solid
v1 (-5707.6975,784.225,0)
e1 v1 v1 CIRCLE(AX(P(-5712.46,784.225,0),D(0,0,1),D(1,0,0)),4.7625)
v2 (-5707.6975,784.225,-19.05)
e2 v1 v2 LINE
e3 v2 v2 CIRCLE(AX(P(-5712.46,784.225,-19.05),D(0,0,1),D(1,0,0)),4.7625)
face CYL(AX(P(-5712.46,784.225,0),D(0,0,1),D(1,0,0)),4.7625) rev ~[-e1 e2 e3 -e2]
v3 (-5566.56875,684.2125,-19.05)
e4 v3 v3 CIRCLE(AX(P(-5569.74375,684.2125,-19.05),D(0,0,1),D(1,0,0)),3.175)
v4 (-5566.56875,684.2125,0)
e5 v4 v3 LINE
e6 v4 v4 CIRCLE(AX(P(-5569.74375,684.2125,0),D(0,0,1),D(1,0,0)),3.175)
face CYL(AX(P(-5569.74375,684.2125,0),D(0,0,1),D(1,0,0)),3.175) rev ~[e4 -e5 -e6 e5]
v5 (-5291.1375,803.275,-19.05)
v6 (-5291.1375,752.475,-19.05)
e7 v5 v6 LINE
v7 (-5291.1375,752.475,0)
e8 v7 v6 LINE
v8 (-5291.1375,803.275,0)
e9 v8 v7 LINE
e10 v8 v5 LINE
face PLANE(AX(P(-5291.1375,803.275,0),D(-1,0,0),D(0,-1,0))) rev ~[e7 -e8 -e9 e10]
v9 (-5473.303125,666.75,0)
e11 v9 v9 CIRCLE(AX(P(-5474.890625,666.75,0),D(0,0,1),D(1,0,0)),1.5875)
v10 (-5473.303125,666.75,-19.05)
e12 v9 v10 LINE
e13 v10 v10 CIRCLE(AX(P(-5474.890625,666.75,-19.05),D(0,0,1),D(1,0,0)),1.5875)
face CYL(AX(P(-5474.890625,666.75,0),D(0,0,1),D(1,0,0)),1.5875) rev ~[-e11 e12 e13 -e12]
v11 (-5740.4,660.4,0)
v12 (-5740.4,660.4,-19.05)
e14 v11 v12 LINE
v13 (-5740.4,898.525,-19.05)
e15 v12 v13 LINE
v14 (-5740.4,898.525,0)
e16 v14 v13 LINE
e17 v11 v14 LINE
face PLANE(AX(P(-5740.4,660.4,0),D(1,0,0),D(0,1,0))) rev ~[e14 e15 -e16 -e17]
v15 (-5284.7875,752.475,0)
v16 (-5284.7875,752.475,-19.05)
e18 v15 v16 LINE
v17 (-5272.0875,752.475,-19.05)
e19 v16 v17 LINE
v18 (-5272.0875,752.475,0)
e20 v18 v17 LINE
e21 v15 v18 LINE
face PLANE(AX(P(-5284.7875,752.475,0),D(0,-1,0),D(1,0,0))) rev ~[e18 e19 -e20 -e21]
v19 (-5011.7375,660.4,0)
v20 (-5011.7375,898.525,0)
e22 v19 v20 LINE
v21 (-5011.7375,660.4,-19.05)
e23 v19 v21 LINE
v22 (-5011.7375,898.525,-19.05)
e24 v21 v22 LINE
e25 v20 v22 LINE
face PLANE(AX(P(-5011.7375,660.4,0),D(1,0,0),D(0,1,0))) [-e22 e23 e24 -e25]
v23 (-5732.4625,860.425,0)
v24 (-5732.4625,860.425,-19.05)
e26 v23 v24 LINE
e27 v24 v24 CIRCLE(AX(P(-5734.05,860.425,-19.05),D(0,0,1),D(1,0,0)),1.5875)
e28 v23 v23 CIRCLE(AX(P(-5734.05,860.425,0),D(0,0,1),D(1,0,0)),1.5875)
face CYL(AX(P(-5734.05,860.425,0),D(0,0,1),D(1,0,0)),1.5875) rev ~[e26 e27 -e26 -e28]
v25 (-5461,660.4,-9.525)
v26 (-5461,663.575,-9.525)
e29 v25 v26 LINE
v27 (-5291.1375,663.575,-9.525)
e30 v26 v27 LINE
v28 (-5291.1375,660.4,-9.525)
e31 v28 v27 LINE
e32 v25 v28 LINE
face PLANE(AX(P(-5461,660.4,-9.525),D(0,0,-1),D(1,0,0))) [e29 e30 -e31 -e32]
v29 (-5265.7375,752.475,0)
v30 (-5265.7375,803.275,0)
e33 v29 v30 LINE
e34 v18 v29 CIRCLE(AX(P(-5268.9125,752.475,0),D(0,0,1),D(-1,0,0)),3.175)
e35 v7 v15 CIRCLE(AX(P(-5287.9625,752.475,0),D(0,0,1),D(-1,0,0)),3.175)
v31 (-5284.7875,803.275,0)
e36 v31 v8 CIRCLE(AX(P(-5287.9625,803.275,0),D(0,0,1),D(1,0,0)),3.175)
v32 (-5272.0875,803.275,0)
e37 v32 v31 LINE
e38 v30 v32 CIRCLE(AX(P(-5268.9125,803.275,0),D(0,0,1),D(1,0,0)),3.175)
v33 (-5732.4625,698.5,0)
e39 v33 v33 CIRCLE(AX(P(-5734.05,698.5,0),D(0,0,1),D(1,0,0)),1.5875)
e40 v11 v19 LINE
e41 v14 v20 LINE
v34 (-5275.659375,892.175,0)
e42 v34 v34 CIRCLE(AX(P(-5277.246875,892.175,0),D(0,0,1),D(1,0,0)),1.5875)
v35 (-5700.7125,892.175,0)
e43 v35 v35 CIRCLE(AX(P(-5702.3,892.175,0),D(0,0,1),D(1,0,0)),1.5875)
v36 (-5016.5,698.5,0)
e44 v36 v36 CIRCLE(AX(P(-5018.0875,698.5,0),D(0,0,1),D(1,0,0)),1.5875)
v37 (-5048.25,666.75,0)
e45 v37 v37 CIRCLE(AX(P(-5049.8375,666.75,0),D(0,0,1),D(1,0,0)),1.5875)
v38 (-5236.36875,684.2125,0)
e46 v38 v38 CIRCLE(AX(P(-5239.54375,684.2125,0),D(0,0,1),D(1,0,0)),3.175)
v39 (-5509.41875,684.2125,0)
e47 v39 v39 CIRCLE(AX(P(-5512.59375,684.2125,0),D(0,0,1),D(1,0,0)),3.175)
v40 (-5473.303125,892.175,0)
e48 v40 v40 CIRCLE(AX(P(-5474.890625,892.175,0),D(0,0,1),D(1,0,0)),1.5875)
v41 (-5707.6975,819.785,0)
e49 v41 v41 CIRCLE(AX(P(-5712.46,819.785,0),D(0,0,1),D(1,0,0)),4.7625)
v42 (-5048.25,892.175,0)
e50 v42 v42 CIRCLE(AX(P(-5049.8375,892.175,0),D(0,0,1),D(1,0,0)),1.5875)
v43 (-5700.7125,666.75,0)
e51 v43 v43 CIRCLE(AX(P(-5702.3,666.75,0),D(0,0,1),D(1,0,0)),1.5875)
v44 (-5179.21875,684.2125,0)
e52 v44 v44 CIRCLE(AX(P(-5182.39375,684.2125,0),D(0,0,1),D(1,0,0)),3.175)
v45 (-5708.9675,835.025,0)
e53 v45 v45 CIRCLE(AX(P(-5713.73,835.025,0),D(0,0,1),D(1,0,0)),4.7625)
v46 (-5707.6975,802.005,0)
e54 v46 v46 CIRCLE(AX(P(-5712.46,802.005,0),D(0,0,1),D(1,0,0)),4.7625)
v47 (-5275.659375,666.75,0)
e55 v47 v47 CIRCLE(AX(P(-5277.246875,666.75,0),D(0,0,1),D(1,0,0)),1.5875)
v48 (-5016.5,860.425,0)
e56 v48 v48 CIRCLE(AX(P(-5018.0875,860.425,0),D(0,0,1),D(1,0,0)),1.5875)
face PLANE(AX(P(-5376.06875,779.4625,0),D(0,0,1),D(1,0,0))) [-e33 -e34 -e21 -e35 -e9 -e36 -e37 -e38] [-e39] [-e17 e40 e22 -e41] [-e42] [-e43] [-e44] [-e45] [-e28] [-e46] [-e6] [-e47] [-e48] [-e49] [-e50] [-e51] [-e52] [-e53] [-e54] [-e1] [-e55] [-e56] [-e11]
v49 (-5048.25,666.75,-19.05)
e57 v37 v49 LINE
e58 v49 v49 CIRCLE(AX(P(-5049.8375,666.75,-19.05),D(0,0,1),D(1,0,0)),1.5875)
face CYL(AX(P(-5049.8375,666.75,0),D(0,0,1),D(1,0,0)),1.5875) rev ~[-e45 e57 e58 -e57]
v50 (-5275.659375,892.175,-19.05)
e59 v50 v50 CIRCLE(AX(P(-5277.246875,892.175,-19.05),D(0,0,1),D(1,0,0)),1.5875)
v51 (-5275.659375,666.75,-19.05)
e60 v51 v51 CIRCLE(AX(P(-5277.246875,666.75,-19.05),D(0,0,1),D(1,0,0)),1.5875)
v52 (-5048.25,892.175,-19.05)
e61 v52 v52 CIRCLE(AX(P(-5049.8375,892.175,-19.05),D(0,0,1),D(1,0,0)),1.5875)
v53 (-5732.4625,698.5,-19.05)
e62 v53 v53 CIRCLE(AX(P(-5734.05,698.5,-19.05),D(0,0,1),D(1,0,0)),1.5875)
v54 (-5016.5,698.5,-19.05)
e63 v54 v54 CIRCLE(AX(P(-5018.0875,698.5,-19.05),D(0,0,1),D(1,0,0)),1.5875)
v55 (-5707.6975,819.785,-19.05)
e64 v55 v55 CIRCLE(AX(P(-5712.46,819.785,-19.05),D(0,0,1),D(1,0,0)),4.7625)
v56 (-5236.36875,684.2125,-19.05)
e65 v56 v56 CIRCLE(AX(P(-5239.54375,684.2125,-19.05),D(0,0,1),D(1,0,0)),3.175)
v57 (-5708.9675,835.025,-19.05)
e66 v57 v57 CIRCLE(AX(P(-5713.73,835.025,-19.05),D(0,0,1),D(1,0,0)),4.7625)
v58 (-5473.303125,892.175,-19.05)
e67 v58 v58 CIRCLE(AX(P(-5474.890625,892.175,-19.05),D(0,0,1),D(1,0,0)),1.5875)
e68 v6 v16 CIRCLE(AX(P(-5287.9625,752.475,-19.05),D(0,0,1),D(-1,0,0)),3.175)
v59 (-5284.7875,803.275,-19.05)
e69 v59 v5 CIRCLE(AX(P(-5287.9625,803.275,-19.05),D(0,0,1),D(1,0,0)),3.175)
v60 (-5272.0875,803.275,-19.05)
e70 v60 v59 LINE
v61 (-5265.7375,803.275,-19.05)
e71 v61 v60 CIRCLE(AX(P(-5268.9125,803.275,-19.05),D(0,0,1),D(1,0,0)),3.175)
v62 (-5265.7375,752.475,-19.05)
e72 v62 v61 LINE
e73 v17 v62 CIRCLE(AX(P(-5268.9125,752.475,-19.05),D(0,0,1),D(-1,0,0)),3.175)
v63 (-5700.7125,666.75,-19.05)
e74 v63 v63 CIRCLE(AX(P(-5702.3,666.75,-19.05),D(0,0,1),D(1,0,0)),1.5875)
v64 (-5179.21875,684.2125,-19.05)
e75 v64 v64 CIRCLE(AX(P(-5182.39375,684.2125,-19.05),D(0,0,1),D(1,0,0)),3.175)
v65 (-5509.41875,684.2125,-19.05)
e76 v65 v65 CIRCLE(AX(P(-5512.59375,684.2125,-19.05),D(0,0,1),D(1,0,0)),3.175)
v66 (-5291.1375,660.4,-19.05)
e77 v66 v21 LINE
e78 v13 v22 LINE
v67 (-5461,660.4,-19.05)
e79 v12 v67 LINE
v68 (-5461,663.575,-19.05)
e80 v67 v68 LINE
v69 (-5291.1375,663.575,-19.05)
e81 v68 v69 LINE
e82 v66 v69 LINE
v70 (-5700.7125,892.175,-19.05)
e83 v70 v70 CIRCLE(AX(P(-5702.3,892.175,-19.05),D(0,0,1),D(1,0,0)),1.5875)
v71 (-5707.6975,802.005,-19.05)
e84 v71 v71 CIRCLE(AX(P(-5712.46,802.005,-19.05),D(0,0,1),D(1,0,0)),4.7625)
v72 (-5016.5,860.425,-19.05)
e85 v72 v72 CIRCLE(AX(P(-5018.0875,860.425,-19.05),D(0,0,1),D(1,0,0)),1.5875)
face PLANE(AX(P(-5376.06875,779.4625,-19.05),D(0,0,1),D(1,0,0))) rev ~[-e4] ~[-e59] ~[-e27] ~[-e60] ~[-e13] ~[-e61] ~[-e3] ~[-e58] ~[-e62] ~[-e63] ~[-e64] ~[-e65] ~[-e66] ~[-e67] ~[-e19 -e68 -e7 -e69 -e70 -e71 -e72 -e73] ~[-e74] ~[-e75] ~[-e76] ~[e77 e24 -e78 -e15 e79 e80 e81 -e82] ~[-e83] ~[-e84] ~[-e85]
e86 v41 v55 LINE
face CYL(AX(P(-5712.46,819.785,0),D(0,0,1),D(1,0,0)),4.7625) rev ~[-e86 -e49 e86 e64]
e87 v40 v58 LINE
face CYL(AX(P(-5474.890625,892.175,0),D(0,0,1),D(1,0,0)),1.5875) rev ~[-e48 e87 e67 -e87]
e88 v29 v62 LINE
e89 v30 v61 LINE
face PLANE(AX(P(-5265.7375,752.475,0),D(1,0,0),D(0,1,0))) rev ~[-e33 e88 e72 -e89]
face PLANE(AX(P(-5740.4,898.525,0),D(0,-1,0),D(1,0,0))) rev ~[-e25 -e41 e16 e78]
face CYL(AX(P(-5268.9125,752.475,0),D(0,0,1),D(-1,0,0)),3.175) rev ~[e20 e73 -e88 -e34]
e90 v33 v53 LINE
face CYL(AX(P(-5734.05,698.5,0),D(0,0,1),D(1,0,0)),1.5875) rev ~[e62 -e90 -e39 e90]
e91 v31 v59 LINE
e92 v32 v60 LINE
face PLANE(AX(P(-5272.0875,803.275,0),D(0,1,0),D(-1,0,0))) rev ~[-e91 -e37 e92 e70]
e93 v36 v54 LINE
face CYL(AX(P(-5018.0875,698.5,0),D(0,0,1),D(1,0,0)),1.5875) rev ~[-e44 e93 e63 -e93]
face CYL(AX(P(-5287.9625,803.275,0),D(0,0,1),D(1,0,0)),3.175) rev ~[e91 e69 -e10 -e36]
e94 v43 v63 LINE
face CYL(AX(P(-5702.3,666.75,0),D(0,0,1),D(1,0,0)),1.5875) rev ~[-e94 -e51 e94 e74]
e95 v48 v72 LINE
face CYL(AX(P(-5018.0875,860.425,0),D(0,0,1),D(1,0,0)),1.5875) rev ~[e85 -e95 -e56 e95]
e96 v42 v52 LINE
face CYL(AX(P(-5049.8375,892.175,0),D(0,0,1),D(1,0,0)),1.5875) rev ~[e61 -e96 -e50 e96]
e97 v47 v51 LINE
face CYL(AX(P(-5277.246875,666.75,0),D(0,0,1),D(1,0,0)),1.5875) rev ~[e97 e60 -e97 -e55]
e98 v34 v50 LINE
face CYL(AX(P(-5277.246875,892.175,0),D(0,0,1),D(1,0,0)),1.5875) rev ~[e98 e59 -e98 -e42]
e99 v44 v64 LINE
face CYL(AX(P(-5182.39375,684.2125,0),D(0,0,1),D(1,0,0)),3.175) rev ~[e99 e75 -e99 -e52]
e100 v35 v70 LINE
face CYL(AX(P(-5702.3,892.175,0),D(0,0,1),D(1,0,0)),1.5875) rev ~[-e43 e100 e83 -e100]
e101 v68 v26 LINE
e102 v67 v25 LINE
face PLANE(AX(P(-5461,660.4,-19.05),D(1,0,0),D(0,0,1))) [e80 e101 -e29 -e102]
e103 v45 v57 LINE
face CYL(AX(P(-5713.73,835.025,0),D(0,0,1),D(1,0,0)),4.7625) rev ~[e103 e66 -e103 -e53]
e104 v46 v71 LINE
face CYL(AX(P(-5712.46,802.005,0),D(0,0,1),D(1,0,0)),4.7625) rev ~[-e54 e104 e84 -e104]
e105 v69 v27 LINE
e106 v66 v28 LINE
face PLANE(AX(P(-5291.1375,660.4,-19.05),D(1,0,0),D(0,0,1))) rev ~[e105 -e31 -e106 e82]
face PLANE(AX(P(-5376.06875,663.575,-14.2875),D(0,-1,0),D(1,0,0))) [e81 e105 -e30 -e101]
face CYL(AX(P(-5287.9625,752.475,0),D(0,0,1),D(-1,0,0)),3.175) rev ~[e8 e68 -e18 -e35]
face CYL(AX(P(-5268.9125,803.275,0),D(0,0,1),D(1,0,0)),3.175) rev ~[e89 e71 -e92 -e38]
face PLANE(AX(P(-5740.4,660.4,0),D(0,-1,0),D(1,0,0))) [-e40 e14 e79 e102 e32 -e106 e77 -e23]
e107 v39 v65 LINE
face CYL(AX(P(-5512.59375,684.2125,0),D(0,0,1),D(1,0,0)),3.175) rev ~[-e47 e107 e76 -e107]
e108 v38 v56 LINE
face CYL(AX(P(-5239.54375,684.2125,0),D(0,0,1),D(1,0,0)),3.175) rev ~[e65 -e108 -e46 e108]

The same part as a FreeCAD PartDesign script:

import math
import FreeCAD as App
import Part
import Sketcher
from FreeCAD import Vector
Q = App.Units.Quantity

doc = App.newDocument("Part")
body = doc.addObject("PartDesign::Body", "Body")

sketch1 = doc.addObject("Sketcher::SketchObject", "Sketch")
body.addObject(sketch1)
sketch1.AttachmentSupport = (doc.XY_Plane, [""])
sketch1.MapMode = "FlatFace"
sketch1.addGeometry([
    Part.LineSegment(Vector(-5740, 899, 0), Vector(-5740, 660, 0)),
    Part.LineSegment(Vector(-5740, 660, 0), Vector(-5012, 660, 0)),
    Part.LineSegment(Vector(-5012, 660, 0), Vector(-5012, 899, 0)),
    Part.LineSegment(Vector(-5012, 899, 0), Vector(-5740, 899, 0)),
], False)
sketch1.addConstraint([
    Sketcher.Constraint("Coincident", 0, 2, 1, 1),
    Sketcher.Constraint("Coincident", 1, 2, 2, 1),
    Sketcher.Constraint("Coincident", 2, 2, 3, 1),
    Sketcher.Constraint("Coincident", 3, 2, 0, 1),
    Sketcher.Constraint("Vertical", 0),
    Sketcher.Constraint("Horizontal", 1),
    Sketcher.Constraint("Vertical", 2),
    Sketcher.Constraint("Horizontal", 3),
    Sketcher.Constraint("DistanceX", 0, 2, -1, 1, Q("226 in")),
    Sketcher.Constraint("DistanceY", -1, 1, 0, 2, Q("26 in")),
    Sketcher.Constraint("DistanceX", 1, 1, 1, 2, Q("28.6875 in")),
    Sketcher.Constraint("DistanceY", 0, 2, 0, 1, Q("9.375 in")),
])
pad1 = doc.addObject("PartDesign::Pad", "Pad")
body.addObject(pad1)
pad1.Profile = sketch1
pad1.Length = Q("0.75 in")
pad1.Reversed = True

sketch2 = doc.addObject("Sketcher::SketchObject", "Sketch001")
body.addObject(sketch2)
sketch2.AttachmentSupport = (doc.XY_Plane, [""])
sketch2.MapMode = "FlatFace"
sketch2.addGeometry([
    Part.Circle(Vector(-5702.3, 892.2, 0), Vector(0, 0, 1), 1.6),
    Part.Circle(Vector(-5734.1, 860.4, 0), Vector(0, 0, 1), 1.6),
    Part.Circle(Vector(-5713.7, 835, 0), Vector(0, 0, 1), 4.8),
    Part.Circle(Vector(-5712.5, 819.8, 0), Vector(0, 0, 1), 4.8),
    Part.Circle(Vector(-5712.5, 802, 0), Vector(0, 0, 1), 4.8),
    Part.Circle(Vector(-5712.5, 784.2, 0), Vector(0, 0, 1), 4.8),
    Part.Circle(Vector(-5734.1, 698.5, 0), Vector(0, 0, 1), 1.6),
    Part.Circle(Vector(-5702.3, 666.8, 0), Vector(0, 0, 1), 1.6),
    Part.Circle(Vector(-5569.7, 684.2, 0), Vector(0, 0, 1), 3.2),
    Part.Circle(Vector(-5512.6, 684.2, 0), Vector(0, 0, 1), 3.2),
    Part.Circle(Vector(-5474.9, 666.8, 0), Vector(0, 0, 1), 1.6),
    Part.Circle(Vector(-5277.2, 666.8, 0), Vector(0, 0, 1), 1.6),
    Part.Circle(Vector(-5239.5, 684.2, 0), Vector(0, 0, 1), 3.2),
    Part.Circle(Vector(-5182.4, 684.2, 0), Vector(0, 0, 1), 3.2),
    Part.Circle(Vector(-5049.8, 666.8, 0), Vector(0, 0, 1), 1.6),
    Part.Circle(Vector(-5018.1, 698.5, 0), Vector(0, 0, 1), 1.6),
    Part.Circle(Vector(-5018.1, 860.4, 0), Vector(0, 0, 1), 1.6),
    Part.Circle(Vector(-5049.8, 892.2, 0), Vector(0, 0, 1), 1.6),
    Part.Circle(Vector(-5277.2, 892.2, 0), Vector(0, 0, 1), 1.6),
    Part.Circle(Vector(-5474.9, 892.2, 0), Vector(0, 0, 1), 1.6),
    Part.LineSegment(Vector(-5291.1, 803.3, 0), Vector(-5291.1, 752.5, 0)),
    Part.ArcOfCircle(Part.Circle(Vector(-5288, 752.5, 0), Vector(0, 0, 1), 3.2), math.radians(180), math.radians(360)),
    Part.LineSegment(Vector(-5284.8, 752.5, 0), Vector(-5272.1, 752.5, 0)),
    Part.ArcOfCircle(Part.Circle(Vector(-5268.9, 752.5, 0), Vector(0, 0, 1), 3.2), math.radians(180), math.radians(360)),
    Part.LineSegment(Vector(-5265.7, 752.5, 0), Vector(-5265.7, 803.3, 0)),
    Part.ArcOfCircle(Part.Circle(Vector(-5268.9, 803.3, 0), Vector(0, 0, 1), 3.2), math.radians(0), math.radians(180)),
    Part.LineSegment(Vector(-5272.1, 803.3, 0), Vector(-5284.8, 803.3, 0)),
    Part.ArcOfCircle(Part.Circle(Vector(-5288, 803.3, 0), Vector(0, 0, 1), 3.2), math.radians(0), math.radians(180)),
], False)
sketch2.addConstraint([
    Sketcher.Constraint("Tangent", 20, 2, 21, 1),
    Sketcher.Constraint("Coincident", 21, 2, 22, 1),
    Sketcher.Constraint("Coincident", 22, 2, 23, 1),
    Sketcher.Constraint("Tangent", 23, 2, 24, 1),
    Sketcher.Constraint("Tangent", 24, 2, 25, 1),
    Sketcher.Constraint("Coincident", 25, 2, 26, 1),
    Sketcher.Constraint("Coincident", 26, 2, 27, 1),
    Sketcher.Constraint("Tangent", 27, 2, 20, 1),
    Sketcher.Constraint("Vertical", 20),
    Sketcher.Constraint("Horizontal", 22),
    Sketcher.Constraint("Vertical", 24),
    Sketcher.Constraint("Horizontal", 26),
    Sketcher.Constraint("Equal", 0, 1),
    Sketcher.Constraint("Equal", 2, 3),
    Sketcher.Constraint("Equal", 3, 4),
    Sketcher.Constraint("Equal", 4, 5),
    Sketcher.Constraint("Equal", 1, 6),
    Sketcher.Constraint("Equal", 6, 7),
    Sketcher.Constraint("Equal", 8, 9),
    Sketcher.Constraint("Equal", 7, 10),
    Sketcher.Constraint("Equal", 10, 11),
    Sketcher.Constraint("Equal", 9, 12),
    Sketcher.Constraint("Equal", 12, 13),
    Sketcher.Constraint("Equal", 11, 14),
    Sketcher.Constraint("Equal", 14, 15),
    Sketcher.Constraint("Equal", 15, 16),
    Sketcher.Constraint("Equal", 16, 17),
    Sketcher.Constraint("Equal", 17, 18),
    Sketcher.Constraint("Equal", 18, 19),
    Sketcher.Constraint("Equal", 13, 21),
    Sketcher.Constraint("Equal", 21, 23),
    Sketcher.Constraint("Equal", 23, 25),
    Sketcher.Constraint("Equal", 25, 27),
    Sketcher.Constraint("Horizontal", 8, 3, 9, 3),
    Sketcher.Constraint("Horizontal", 7, 3, 10, 3),
    Sketcher.Constraint("Horizontal", 10, 3, 11, 3),
    Sketcher.Constraint("Horizontal", 9, 3, 12, 3),
    Sketcher.Constraint("Horizontal", 12, 3, 13, 3),
    Sketcher.Constraint("Horizontal", 11, 3, 14, 3),
    Sketcher.Constraint("Horizontal", 6, 3, 15, 3),
    Sketcher.Constraint("Horizontal", 1, 3, 16, 3),
    Sketcher.Constraint("Horizontal", 0, 3, 17, 3),
    Sketcher.Constraint("Horizontal", 17, 3, 18, 3),
    Sketcher.Constraint("Horizontal", 18, 3, 19, 3),
    Sketcher.Constraint("Horizontal", 21, 3, 23, 3),
    Sketcher.Constraint("Horizontal", 25, 3, 27, 3),
    Sketcher.Constraint("Horizontal", 20, 2, 21, 2),
    Sketcher.Constraint("Horizontal", 24, 2, 25, 2),
    Sketcher.Constraint("Vertical", 3, 3, 4, 3),
    Sketcher.Constraint("Vertical", 4, 3, 5, 3),
    Sketcher.Constraint("Vertical", 1, 3, 6, 3),
    Sketcher.Constraint("Vertical", 0, 3, 7, 3),
    Sketcher.Constraint("Vertical", 15, 3, 16, 3),
    Sketcher.Constraint("Vertical", 14, 3, 17, 3),
    Sketcher.Constraint("Vertical", 11, 3, 18, 3),
    Sketcher.Constraint("Vertical", 10, 3, 19, 3),
    Sketcher.Constraint("Diameter", 8, Q("0.25 in")),
    Sketcher.Constraint("DistanceY", 20, 2, 20, 1, Q("2 in")),
    Sketcher.Constraint("Diameter", 0, Q("0.125 in")),
    Sketcher.Constraint("Diameter", 2, Q("0.375 in")),
    Sketcher.Constraint("DistanceX", 22, 1, 22, 2, Q("0.5 in")),
    Sketcher.Constraint("DistanceY", 2, 3, 1, 3, Q("1 in")),
    Sketcher.Constraint("DistanceY", 5, 3, 2, 3, Q("2 in")),
    Sketcher.Constraint("DistanceX", 8, 3, 12, 3, Q("13 in")),
    Sketcher.Constraint("DistanceX", 9, 3, 13, 3, Q("13 in")),
    Sketcher.Constraint("DistanceX", 0, 3, -1, 1, Q("224.5 in")),
    Sketcher.Constraint("DistanceX", 3, 3, -1, 1, Q("224.9 in")),
    Sketcher.Constraint("DistanceY", -1, 1, 6, 3, Q("27.5 in")),
    Sketcher.Constraint("DistanceX", 1, 3, 2, 3, Q("0.8 in")),
    Sketcher.Constraint("DistanceY", 3, 3, 2, 3, Q("0.6 in")),
    Sketcher.Constraint("DistanceY", 4, 3, 3, 3, Q("0.7 in")),
    Sketcher.Constraint("DistanceY", 21, 3, 18, 3, Q("5.5 in")),
    Sketcher.Constraint("DistanceX", 1, 3, -1, 1, Q("225.75 in")),
    Sketcher.Constraint("DistanceY", -1, 1, 7, 3, Q("26.25 in")),
    Sketcher.Constraint("DistanceY", 1, 3, 0, 3, Q("1.25 in")),
    Sketcher.Constraint("DistanceX", 8, 3, 9, 3, Q("2.25 in")),
    Sketcher.Constraint("DistanceX", 14, 3, 15, 3, Q("1.25 in")),
    Sketcher.Constraint("DistanceY", -1, 1, 0, 3, Q("35.125 in")),
    Sketcher.Constraint("DistanceX", 8, 3, -1, 1, Q("219.28125 in")),
    Sketcher.Constraint("DistanceY", -1, 1, 8, 3, Q("26.9375 in")),
    Sketcher.Constraint("DistanceX", 10, 3, -1, 1, Q("215.546875 in")),
    Sketcher.Constraint("DistanceX", 11, 3, -1, 1, Q("207.765625 in")),
    Sketcher.Constraint("DistanceX", 14, 3, -1, 1, Q("198.8125 in")),
    Sketcher.Constraint("DistanceX", 21, 3, -1, 1, Q("208.1875 in")),
])
pocket1 = doc.addObject("PartDesign::Pocket", "Pocket")
body.addObject(pocket1)
pocket1.Profile = sketch2
pocket1.Length = Q("0.75 in")

sketch3 = doc.addObject("Sketcher::SketchObject", "Sketch002")
body.addObject(sketch3)
sketch3.AttachmentSupport = (doc.XZ_Plane, [""])
sketch3.MapMode = "FlatFace"
sketch3.AttachmentOffset = App.Placement(Vector(0, 0, -26 * 25.4), App.Rotation())
sketch3.addGeometry([
    Part.LineSegment(Vector(-5461, -10, 0), Vector(-5461, -19, 0)),
    Part.LineSegment(Vector(-5461, -19, 0), Vector(-5291, -19, 0)),
    Part.LineSegment(Vector(-5291, -19, 0), Vector(-5291, -10, 0)),
    Part.LineSegment(Vector(-5291, -10, 0), Vector(-5461, -10, 0)),
], False)
sketch3.addConstraint([
    Sketcher.Constraint("Coincident", 0, 2, 1, 1),
    Sketcher.Constraint("Coincident", 1, 2, 2, 1),
    Sketcher.Constraint("Coincident", 2, 2, 3, 1),
    Sketcher.Constraint("Coincident", 3, 2, 0, 1),
    Sketcher.Constraint("Vertical", 0),
    Sketcher.Constraint("Horizontal", 1),
    Sketcher.Constraint("Vertical", 2),
    Sketcher.Constraint("Horizontal", 3),
    Sketcher.Constraint("DistanceX", 0, 2, -1, 1, Q("215 in")),
    Sketcher.Constraint("DistanceX", 1, 1, 1, 2, Q("6.6875 in")),
    Sketcher.Constraint("DistanceY", 0, 2, 0, 1, Q("0.375 in")),
    Sketcher.Constraint("DistanceY", 0, 2, -1, 1, Q("0.75 in")),
])
pocket2 = doc.addObject("PartDesign::Pocket", "Pocket001")
body.addObject(pocket2)
pocket2.Profile = sketch3
pocket2.Length = Q("0.125 in")

doc.recompute()
